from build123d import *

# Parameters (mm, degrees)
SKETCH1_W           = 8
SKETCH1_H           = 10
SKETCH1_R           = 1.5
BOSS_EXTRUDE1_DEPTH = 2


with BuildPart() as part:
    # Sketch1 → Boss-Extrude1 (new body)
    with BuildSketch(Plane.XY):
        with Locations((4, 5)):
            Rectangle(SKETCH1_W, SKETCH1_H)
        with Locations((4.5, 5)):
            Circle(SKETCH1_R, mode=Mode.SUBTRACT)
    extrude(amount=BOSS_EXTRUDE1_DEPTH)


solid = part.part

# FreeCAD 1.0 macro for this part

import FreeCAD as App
import Part
import Sketcher
from FreeCAD import Vector
Q = App.Units.Quantity

doc = App.newDocument("Part")
body = doc.addObject("PartDesign::Body", "Body")

# Sketch on XY plane
sketch1 = body.newObject("Sketcher::SketchObject", "Sketch")
sketch1.AttachmentSupport = (doc.getObject("XY_Plane"), [""])
sketch1.MapMode = "FlatFace"
sketch1.addGeometry(Part.LineSegment(Vector(0, 10, 0), Vector(0, 0, 0)), False)
sketch1.addGeometry(Part.LineSegment(Vector(0, 0, 0), Vector(8, 0, 0)), False)
sketch1.addGeometry(Part.LineSegment(Vector(8, 0, 0), Vector(8, 10, 0)), False)
sketch1.addGeometry(Part.LineSegment(Vector(8, 10, 0), Vector(0, 10, 0)), False)
sketch1.addGeometry(Part.Circle(Vector(4.5, 5, 0), Vector(0, 0, 1), 1.5), False)
sketch1.addConstraint(Sketcher.Constraint("Coincident", 0, 2, 1, 1))
sketch1.addConstraint(Sketcher.Constraint("Coincident", 1, 2, 2, 1))
sketch1.addConstraint(Sketcher.Constraint("Coincident", 2, 2, 3, 1))
sketch1.addConstraint(Sketcher.Constraint("Coincident", 3, 2, 0, 1))
sketch1.addConstraint(Sketcher.Constraint("Vertical", 0))
sketch1.addConstraint(Sketcher.Constraint("Horizontal", 1))
sketch1.addConstraint(Sketcher.Constraint("Vertical", 2))
sketch1.addConstraint(Sketcher.Constraint("Horizontal", 3))
sketch1.addConstraint(Sketcher.Constraint("Coincident", 0, 2, -1, 1))
sketch1.addConstraint(Sketcher.Constraint("Diameter", 4, Q("3 mm")))
sketch1.addConstraint(Sketcher.Constraint("DistanceX", 1, 1, 1, 2, Q("8 mm")))
sketch1.addConstraint(Sketcher.Constraint("DistanceY", 0, 2, 0, 1, Q("10 mm")))
sketch1.addConstraint(Sketcher.Constraint("DistanceY", -1, 1, 4, 3, Q("5 mm")))
sketch1.addConstraint(Sketcher.Constraint("DistanceX", -1, 1, 4, 3, Q("4.5 mm")))
pad1 = body.newObject("PartDesign::Pad", "Pad")
pad1.Profile = sketch1
pad1.Length = 2

doc.recompute()
